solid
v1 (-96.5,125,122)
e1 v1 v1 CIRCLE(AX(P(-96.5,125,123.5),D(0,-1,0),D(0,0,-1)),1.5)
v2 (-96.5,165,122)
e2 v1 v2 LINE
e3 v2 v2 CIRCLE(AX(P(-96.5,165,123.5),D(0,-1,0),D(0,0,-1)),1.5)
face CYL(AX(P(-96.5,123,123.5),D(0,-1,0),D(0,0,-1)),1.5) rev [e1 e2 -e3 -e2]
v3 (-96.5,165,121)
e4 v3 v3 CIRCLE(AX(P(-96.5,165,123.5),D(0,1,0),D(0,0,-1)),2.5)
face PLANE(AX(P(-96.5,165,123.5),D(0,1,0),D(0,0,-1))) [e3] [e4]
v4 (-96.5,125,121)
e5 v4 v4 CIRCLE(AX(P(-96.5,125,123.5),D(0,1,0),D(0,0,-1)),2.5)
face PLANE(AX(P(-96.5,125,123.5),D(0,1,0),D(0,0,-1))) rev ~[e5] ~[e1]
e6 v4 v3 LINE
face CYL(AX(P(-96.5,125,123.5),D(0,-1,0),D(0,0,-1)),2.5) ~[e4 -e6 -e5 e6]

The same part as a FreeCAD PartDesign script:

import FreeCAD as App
import Part
import Sketcher

V = App.Vector

doc = App.newDocument("Part")
body = doc.addObject("PartDesign::Body", "Body")

sketch1 = body.newObject("Sketcher::SketchObject", "Sketch")
sketch1.AttachmentSupport = (doc.getObject("XY_Plane"), [""])
sketch1.MapMode = "FlatFace"
sketch1.addGeometry(Part.Circle(V(0, 0, 0), V(0, 0, 1), 1.5), False)
sketch1.addConstraint([
    Sketcher.Constraint("Coincident", 0, 3, -1, 1),
    Sketcher.Constraint("Diameter", 0, 3.0),
])
pad1 = body.newObject("PartDesign::Pad", "Pad")
pad1.Profile = sketch1
pad1.Length = 44
body2 = doc.addObject("PartDesign::Body", "Body001")
doc.recompute()

body.Placement = App.Placement(V(0, 0, 0), App.Rotation(V(0, 1, 0), 90))
boolean = body2.newObject("PartDesign::Boolean", "Boolean")
boolean.Type = "Fuse"
boolean.addObjects([body])
body3 = doc.addObject("PartDesign::Body", "Body002")
doc.recompute()

body2.Placement = App.Placement(V(-2, 0, 0), App.Rotation(V(0, 0, 1), 0))
boolean2 = body3.newObject("PartDesign::Boolean", "Boolean001")
boolean2.Type = "Fuse"
boolean2.addObjects([body2])
body4 = doc.addObject("PartDesign::Body", "Body003")

sketch2 = body4.newObject("Sketcher::SketchObject", "Sketch001")
sketch2.AttachmentSupport = (doc.getObject("XY_Plane003"), [""])
sketch2.MapMode = "FlatFace"
sketch2.addGeometry(Part.Circle(V(0, 0, 0), V(0, 0, 1), 2.5), False)
sketch2.addConstraint([
    Sketcher.Constraint("Coincident", 0, 3, -1, 1),
    Sketcher.Constraint("Diameter", 0, 5.0),
])
pad2 = body4.newObject("PartDesign::Pad", "Pad001")
pad2.Profile = sketch2
pad2.Length = 40
body5 = doc.addObject("PartDesign::Body", "Body004")
doc.recompute()

body4.Placement = App.Placement(V(0, 0, 0), App.Rotation(V(0, 1, 0), 90))
boolean3 = body5.newObject("PartDesign::Boolean", "Boolean002")
boolean3.Type = "Fuse"
boolean3.addObjects([body4])
doc.recompute()

boolean4 = body5.newObject("PartDesign::Boolean", "Boolean003")
boolean4.Type = "Cut"
boolean4.addObjects([body3])
body6 = doc.addObject("PartDesign::Body", "Body005")
doc.recompute()

body5.Placement = App.Placement(V(-96.5, 125, 123.5), App.Rotation(V(0, 0, 1), 90))
boolean5 = body6.newObject("PartDesign::Boolean", "Boolean004")
boolean5.Type = "Fuse"
boolean5.addObjects([body5])

doc.recompute()
